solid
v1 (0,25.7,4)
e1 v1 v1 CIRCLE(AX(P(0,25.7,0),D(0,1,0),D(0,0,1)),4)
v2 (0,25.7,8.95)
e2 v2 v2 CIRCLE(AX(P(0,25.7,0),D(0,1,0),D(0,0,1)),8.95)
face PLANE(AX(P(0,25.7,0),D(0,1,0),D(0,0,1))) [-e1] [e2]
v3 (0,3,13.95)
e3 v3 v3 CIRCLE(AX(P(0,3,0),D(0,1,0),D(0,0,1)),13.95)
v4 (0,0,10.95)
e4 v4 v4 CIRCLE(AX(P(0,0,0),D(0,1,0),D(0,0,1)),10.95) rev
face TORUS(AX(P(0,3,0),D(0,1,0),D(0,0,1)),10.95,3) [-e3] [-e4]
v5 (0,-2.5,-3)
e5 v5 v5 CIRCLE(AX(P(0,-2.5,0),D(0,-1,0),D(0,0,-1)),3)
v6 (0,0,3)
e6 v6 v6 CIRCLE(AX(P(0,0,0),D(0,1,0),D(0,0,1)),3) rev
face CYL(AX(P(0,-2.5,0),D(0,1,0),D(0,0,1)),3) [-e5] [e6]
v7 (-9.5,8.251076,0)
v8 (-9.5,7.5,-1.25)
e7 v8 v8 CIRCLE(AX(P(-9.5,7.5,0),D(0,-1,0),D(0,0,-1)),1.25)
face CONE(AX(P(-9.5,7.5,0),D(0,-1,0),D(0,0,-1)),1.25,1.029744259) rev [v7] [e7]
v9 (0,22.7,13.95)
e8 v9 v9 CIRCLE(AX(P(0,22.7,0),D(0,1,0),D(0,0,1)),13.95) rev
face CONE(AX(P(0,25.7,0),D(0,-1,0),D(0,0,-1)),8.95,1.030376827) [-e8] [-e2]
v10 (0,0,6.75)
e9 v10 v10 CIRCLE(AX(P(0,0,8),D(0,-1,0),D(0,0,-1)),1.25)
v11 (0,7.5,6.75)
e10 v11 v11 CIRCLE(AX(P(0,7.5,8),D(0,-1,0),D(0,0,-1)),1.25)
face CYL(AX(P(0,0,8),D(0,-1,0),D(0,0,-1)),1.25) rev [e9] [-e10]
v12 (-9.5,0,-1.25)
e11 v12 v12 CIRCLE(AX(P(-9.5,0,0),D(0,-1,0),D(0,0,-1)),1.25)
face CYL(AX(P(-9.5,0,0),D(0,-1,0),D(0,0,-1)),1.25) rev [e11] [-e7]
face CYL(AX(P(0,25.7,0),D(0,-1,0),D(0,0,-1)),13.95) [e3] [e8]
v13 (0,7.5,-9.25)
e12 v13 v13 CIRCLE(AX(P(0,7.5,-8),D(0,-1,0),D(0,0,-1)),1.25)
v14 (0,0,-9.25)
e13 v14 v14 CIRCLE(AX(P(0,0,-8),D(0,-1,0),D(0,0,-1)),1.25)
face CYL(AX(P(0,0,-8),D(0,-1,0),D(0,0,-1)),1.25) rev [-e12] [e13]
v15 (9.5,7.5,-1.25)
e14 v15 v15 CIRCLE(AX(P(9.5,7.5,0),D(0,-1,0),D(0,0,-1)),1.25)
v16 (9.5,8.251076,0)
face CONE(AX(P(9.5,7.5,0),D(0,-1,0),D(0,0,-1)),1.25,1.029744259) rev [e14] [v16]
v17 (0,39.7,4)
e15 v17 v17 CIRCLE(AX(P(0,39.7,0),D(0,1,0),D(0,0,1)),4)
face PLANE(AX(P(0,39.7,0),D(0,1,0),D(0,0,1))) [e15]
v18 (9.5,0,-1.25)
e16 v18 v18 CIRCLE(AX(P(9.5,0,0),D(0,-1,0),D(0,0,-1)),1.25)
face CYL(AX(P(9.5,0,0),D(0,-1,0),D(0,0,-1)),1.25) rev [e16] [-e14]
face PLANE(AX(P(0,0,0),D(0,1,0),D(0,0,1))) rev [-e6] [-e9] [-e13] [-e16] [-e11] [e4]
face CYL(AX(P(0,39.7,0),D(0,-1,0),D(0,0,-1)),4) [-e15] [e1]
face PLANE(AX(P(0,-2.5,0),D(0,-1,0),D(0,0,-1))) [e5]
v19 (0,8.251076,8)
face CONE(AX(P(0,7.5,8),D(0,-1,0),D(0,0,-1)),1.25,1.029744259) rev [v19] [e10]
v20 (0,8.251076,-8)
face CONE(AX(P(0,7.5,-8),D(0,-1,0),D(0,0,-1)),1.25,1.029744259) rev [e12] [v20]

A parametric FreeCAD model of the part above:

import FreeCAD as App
import Part
import Sketcher

V = App.Vector


def edges_at(feature, points):
    """Names of the edges that pass closest to the given points."""
    edges = feature.Shape.Edges
    near = lambda p: min(range(len(edges)), key=lambda i: edges[i].distToShape(Part.Vertex(*p))[0])
    return sorted({f"Edge{near(p) + 1}" for p in points})

doc = App.newDocument("Part")
params = doc.addObject("Spreadsheet::Sheet", "Params")
for row, (alias, value) in enumerate([
    ("sketch1_diameter", "27.9 mm"),
    ("pad1_length", "25.7 mm"),
    ("chamfer_size", "3 mm"),
    ("chamfer_size2", "5 mm"),
    ("sketch2_diameter", "8 mm"),
    ("pad2_length", "14 mm"),
    ("sketch3_diameter", "2.5 mm"),
    ("hole_diameter", "2.5 mm"),
    ("hole_depth", "7.5 mm"),
    ("fillet_radius", "3 mm"),
    ("sketch4_diameter", "6 mm"),
    ("pad3_length", "2.5 mm"),
], start=1):
    params.set(f"A{row}", alias)
    params.set(f"B{row}", "=" + value)
    params.setAlias(f"B{row}", alias)

body = doc.addObject("PartDesign::Body", "Body")

# Sketch on XZ plane
sketch1 = doc.addObject("Sketcher::SketchObject", "Sketch")
body.addObject(sketch1)
sketch1.AttachmentSupport = (doc.XZ_Plane, [""])
sketch1.MapMode = "FlatFace"
sketch1.addGeometry(Part.Circle(V(0, 0, 0), V(0, 0, 1), 14), False)
sketch1.addConstraint(Sketcher.Constraint("Coincident", 0, 3, -1, 1))
sketch1.addConstraint(Sketcher.Constraint("Diameter", 0, 27.9))
sketch1.setExpression("Constraints[1]", "Params.sketch1_diameter")
pad1 = doc.addObject("PartDesign::Pad", "Pad")
body.addObject(pad1)
pad1.Profile = sketch1
pad1.setExpression("Length", "Params.pad1_length")
pad1.Reversed = True
doc.recompute()

chamfer = doc.addObject("PartDesign::Chamfer", "Chamfer")
body.addObject(chamfer)
chamfer.Base = (pad1, edges_at(pad1, [(-13.95, 25.7, 0)]))
chamfer.ChamferType = "Two distances"
chamfer.setExpression("Size", "Params.chamfer_size")
chamfer.setExpression("Size2", "Params.chamfer_size2")

# Sketch on XZ plane
sketch2 = doc.addObject("Sketcher::SketchObject", "Sketch001")
body.addObject(sketch2)
sketch2.AttachmentSupport = (doc.XZ_Plane, [""])
sketch2.MapMode = "FlatFace"
sketch2.AttachmentOffset = App.Placement(V(0, 0, -25.7), App.Rotation())
sketch2.addGeometry(Part.Circle(V(0, 0, 0), V(0, 0, 1), 4), False)
sketch2.addConstraint(Sketcher.Constraint("Coincident", 0, 3, -1, 1))
sketch2.addConstraint(Sketcher.Constraint("Diameter", 0, 8.0))
sketch2.setExpression("Constraints[1]", "Params.sketch2_diameter")
pad2 = doc.addObject("PartDesign::Pad", "Pad001")
body.addObject(pad2)
pad2.Profile = sketch2
pad2.setExpression("Length", "Params.pad2_length")
pad2.Reversed = True

# Sketch on XZ plane
sketch3 = doc.addObject("Sketcher::SketchObject", "Sketch002")
body.addObject(sketch3)
sketch3.AttachmentSupport = (doc.XZ_Plane, [""])
sketch3.MapMode = "FlatFace"
sketch3.addGeometry(Part.Circle(V(0, -8, 0), V(0, 0, 1), 1.2), False)
sketch3.addGeometry(Part.Circle(V(0, 8, 0), V(0, 0, 1), 1.2), False)
sketch3.addGeometry(Part.Circle(V(9.5, 0, 0), V(0, 0, 1), 1.2), False)
sketch3.addGeometry(Part.Circle(V(-9.5, 0, 0), V(0, 0, 1), 1.2), False)
sketch3.addConstraint(Sketcher.Constraint("Equal", 0, 1))
sketch3.addConstraint(Sketcher.Constraint("Equal", 1, 2))
sketch3.addConstraint(Sketcher.Constraint("Equal", 2, 3))
sketch3.addConstraint(Sketcher.Constraint("Symmetric", 0, 3, 1, 3, -1, 1))
sketch3.addConstraint(Sketcher.Constraint("Symmetric", 2, 3, 3, 3, -1, 1))
sketch3.addConstraint(Sketcher.Constraint("PointOnObject", 0, 3, -2))
sketch3.addConstraint(Sketcher.Constraint("PointOnObject", 2, 3, -1))
sketch3.addConstraint(Sketcher.Constraint("Diameter", 0, 2.5))
sketch3.addConstraint(Sketcher.Constraint("DistanceY", 0, 3, -1, 1, 8.0))
sketch3.addConstraint(Sketcher.Constraint("DistanceX", 3, 3, 2, 3, 19.0))
sketch3.setExpression("Constraints[7]", "Params.sketch3_diameter")
doc.recompute()
hole = doc.addObject("PartDesign::Hole", "Hole")
body.addObject(hole)
hole.Profile = sketch3
hole.ThreadType = "None"
hole.setExpression("Diameter", "Params.hole_diameter")
hole.DepthType = "Dimension"
hole.setExpression("Depth", "Params.hole_depth")
hole.DrillPoint = "Angled"
hole.DrillPointAngle = 118
doc.recompute()

fillet = doc.addObject("PartDesign::Fillet", "Fillet")
body.addObject(fillet)
fillet.Base = (hole, edges_at(hole, [(-13.95, 0, 0)]))
fillet.setExpression("Radius", "Params.fillet_radius")

# Sketch on XZ plane
sketch4 = doc.addObject("Sketcher::SketchObject", "Sketch003")
body.addObject(sketch4)
sketch4.AttachmentSupport = (doc.XZ_Plane, [""])
sketch4.MapMode = "FlatFace"
sketch4.addGeometry(Part.Circle(V(0, 0, 0), V(0, 0, 1), 3), False)
sketch4.addConstraint(Sketcher.Constraint("Coincident", 0, 3, -1, 1))
sketch4.addConstraint(Sketcher.Constraint("Diameter", 0, 6.0))
sketch4.setExpression("Constraints[1]", "Params.sketch4_diameter")
pad3 = doc.addObject("PartDesign::Pad", "Pad002")
body.addObject(pad3)
pad3.Profile = sketch4
pad3.setExpression("Length", "Params.pad3_length")

doc.recompute()
